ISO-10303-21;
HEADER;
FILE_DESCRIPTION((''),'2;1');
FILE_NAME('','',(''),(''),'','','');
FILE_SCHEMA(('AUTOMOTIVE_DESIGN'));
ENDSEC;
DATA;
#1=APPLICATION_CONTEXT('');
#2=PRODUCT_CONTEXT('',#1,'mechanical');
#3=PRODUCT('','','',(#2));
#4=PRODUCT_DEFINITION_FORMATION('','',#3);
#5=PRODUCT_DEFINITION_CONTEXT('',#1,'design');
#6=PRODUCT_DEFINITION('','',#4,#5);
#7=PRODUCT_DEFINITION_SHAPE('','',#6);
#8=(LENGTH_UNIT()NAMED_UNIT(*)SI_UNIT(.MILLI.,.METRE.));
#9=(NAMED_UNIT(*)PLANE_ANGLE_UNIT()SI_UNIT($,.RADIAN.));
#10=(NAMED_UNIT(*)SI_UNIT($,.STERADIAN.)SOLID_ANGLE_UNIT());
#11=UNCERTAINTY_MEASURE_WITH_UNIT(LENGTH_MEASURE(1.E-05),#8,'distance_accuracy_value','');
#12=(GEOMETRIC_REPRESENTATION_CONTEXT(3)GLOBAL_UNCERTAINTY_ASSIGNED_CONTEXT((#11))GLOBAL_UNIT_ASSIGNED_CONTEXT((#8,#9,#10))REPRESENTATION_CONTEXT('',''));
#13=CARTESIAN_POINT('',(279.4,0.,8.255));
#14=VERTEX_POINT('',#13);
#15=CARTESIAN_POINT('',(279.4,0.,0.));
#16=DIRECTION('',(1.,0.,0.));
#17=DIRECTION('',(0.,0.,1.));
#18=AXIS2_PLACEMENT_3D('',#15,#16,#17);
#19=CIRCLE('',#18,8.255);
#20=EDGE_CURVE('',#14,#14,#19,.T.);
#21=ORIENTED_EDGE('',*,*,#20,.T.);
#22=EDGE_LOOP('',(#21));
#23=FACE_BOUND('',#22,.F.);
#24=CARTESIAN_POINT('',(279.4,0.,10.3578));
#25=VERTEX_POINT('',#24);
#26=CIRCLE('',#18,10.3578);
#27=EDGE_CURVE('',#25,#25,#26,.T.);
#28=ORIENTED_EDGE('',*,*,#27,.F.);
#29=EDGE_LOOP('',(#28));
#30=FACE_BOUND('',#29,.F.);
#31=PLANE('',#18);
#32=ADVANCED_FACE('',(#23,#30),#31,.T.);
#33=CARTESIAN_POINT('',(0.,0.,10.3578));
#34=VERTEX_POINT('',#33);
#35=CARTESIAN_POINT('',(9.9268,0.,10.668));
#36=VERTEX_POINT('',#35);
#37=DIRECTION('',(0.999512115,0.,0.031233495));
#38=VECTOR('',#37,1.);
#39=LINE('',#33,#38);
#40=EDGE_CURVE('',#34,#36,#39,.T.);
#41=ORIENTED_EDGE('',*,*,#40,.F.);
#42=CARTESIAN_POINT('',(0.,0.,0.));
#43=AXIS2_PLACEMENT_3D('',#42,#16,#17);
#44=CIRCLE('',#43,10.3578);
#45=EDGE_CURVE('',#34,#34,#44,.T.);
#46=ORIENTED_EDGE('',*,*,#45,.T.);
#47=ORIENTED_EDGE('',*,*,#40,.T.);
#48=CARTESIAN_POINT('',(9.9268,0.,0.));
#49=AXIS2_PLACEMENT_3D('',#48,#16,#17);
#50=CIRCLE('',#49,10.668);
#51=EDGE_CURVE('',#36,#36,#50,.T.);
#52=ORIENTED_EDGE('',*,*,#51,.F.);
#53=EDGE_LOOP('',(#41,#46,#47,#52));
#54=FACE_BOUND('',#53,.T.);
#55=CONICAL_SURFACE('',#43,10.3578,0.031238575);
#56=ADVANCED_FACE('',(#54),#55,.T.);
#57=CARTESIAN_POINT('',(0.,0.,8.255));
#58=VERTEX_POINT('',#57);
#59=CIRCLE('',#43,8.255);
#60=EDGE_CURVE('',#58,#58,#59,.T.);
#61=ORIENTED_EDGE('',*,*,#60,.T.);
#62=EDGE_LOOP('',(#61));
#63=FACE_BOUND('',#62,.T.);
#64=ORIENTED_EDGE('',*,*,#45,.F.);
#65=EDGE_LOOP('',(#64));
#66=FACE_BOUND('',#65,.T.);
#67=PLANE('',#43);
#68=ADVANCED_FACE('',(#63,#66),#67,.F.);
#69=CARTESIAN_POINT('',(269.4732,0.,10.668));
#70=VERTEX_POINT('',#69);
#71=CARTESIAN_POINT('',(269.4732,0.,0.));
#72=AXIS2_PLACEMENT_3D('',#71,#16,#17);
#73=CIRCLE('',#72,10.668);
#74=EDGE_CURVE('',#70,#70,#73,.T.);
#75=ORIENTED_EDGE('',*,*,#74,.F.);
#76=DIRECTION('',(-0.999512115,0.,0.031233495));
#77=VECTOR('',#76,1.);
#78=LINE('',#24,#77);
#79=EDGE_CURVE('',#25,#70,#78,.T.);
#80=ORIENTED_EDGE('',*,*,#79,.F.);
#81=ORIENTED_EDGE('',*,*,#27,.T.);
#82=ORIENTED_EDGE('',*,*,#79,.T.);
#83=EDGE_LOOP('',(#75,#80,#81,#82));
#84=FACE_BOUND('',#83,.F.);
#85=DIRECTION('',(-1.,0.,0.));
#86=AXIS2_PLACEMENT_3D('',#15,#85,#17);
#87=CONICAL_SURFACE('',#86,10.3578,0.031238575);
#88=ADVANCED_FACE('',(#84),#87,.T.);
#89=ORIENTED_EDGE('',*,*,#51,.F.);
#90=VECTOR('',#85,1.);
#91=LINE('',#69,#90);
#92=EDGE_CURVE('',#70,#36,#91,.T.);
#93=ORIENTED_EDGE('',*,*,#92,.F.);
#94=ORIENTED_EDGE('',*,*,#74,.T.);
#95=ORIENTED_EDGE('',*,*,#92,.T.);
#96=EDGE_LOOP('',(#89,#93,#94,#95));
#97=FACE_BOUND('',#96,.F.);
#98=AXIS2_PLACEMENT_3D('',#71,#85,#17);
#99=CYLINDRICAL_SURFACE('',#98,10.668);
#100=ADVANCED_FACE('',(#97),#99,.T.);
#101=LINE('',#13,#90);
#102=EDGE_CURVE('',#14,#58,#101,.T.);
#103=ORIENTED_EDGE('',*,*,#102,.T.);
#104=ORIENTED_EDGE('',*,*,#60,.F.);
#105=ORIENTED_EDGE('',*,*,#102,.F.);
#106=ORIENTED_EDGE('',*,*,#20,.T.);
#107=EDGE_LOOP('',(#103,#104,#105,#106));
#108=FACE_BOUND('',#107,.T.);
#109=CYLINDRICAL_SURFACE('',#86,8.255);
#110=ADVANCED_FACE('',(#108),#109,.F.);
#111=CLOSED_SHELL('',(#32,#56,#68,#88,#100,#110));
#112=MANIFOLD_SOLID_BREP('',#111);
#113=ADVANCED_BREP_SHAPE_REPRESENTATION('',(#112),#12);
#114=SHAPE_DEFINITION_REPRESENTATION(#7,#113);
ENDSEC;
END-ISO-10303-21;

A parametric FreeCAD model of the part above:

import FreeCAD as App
import Part
import Sketcher
from FreeCAD import Vector
Q = App.Units.Quantity


def add_polygon(sketch, points):
    """Adds a closed chain of lines whose ends are joined by coincident constraints."""
    first, n = sketch.GeometryCount, len(points)
    for a, b in zip(points, points[1:] + points[:1]):
        sketch.addGeometry(Part.LineSegment(App.Vector(*a, 0), App.Vector(*b, 0)), False)
    for i in range(n):
        sketch.addConstraint(Sketcher.Constraint("Coincident", first + i, 2, first + (i + 1) % n, 1))

doc = App.newDocument("Part")
body = doc.addObject("PartDesign::Body", "Body")

sketch1 = body.newObject("Sketcher::SketchObject", "Sketch")
sketch1.AttachmentSupport = (doc.getObject("XZ_Plane"), [""])
sketch1.MapMode = "FlatFace"
add_polygon(sketch1, [(279.4, 10.3578), (279.4, 8.255), (0, 8.255), (0, 10.3578), (9.9268, 10.668), (269.4732, 10.668)])
sketch1.addConstraint([
    Sketcher.Constraint("Vertical", 0),
    Sketcher.Constraint("Horizontal", 1),
    Sketcher.Constraint("Vertical", 2),
    Sketcher.Constraint("Horizontal", 4),
    Sketcher.Constraint("PointOnObject", 1, 2, -2),
    Sketcher.Constraint("Horizontal", 2, 2, 5, 2),
    Sketcher.Constraint("Equal", 3, 5),
    Sketcher.Constraint("DistanceX", 1, 2, 1, 1, Q("11 in")),
    Sketcher.Constraint("Angle", 3, Q("1.7898 deg")),
    Sketcher.Constraint("DistanceY", -1, 1, 3, 2, Q("0.42 in")),
    Sketcher.Constraint("Distance", 3, Q("0.391 in")),
    Sketcher.Constraint("DistanceY", -1, 1, 0, 2, Q("0.325 in")),
])
revolution = body.newObject("PartDesign::Revolution", "Revolution")
revolution.Profile = sketch1
revolution.ReferenceAxis = (sketch1, ["H_Axis"])
revolution.Angle = 360

doc.recompute()
